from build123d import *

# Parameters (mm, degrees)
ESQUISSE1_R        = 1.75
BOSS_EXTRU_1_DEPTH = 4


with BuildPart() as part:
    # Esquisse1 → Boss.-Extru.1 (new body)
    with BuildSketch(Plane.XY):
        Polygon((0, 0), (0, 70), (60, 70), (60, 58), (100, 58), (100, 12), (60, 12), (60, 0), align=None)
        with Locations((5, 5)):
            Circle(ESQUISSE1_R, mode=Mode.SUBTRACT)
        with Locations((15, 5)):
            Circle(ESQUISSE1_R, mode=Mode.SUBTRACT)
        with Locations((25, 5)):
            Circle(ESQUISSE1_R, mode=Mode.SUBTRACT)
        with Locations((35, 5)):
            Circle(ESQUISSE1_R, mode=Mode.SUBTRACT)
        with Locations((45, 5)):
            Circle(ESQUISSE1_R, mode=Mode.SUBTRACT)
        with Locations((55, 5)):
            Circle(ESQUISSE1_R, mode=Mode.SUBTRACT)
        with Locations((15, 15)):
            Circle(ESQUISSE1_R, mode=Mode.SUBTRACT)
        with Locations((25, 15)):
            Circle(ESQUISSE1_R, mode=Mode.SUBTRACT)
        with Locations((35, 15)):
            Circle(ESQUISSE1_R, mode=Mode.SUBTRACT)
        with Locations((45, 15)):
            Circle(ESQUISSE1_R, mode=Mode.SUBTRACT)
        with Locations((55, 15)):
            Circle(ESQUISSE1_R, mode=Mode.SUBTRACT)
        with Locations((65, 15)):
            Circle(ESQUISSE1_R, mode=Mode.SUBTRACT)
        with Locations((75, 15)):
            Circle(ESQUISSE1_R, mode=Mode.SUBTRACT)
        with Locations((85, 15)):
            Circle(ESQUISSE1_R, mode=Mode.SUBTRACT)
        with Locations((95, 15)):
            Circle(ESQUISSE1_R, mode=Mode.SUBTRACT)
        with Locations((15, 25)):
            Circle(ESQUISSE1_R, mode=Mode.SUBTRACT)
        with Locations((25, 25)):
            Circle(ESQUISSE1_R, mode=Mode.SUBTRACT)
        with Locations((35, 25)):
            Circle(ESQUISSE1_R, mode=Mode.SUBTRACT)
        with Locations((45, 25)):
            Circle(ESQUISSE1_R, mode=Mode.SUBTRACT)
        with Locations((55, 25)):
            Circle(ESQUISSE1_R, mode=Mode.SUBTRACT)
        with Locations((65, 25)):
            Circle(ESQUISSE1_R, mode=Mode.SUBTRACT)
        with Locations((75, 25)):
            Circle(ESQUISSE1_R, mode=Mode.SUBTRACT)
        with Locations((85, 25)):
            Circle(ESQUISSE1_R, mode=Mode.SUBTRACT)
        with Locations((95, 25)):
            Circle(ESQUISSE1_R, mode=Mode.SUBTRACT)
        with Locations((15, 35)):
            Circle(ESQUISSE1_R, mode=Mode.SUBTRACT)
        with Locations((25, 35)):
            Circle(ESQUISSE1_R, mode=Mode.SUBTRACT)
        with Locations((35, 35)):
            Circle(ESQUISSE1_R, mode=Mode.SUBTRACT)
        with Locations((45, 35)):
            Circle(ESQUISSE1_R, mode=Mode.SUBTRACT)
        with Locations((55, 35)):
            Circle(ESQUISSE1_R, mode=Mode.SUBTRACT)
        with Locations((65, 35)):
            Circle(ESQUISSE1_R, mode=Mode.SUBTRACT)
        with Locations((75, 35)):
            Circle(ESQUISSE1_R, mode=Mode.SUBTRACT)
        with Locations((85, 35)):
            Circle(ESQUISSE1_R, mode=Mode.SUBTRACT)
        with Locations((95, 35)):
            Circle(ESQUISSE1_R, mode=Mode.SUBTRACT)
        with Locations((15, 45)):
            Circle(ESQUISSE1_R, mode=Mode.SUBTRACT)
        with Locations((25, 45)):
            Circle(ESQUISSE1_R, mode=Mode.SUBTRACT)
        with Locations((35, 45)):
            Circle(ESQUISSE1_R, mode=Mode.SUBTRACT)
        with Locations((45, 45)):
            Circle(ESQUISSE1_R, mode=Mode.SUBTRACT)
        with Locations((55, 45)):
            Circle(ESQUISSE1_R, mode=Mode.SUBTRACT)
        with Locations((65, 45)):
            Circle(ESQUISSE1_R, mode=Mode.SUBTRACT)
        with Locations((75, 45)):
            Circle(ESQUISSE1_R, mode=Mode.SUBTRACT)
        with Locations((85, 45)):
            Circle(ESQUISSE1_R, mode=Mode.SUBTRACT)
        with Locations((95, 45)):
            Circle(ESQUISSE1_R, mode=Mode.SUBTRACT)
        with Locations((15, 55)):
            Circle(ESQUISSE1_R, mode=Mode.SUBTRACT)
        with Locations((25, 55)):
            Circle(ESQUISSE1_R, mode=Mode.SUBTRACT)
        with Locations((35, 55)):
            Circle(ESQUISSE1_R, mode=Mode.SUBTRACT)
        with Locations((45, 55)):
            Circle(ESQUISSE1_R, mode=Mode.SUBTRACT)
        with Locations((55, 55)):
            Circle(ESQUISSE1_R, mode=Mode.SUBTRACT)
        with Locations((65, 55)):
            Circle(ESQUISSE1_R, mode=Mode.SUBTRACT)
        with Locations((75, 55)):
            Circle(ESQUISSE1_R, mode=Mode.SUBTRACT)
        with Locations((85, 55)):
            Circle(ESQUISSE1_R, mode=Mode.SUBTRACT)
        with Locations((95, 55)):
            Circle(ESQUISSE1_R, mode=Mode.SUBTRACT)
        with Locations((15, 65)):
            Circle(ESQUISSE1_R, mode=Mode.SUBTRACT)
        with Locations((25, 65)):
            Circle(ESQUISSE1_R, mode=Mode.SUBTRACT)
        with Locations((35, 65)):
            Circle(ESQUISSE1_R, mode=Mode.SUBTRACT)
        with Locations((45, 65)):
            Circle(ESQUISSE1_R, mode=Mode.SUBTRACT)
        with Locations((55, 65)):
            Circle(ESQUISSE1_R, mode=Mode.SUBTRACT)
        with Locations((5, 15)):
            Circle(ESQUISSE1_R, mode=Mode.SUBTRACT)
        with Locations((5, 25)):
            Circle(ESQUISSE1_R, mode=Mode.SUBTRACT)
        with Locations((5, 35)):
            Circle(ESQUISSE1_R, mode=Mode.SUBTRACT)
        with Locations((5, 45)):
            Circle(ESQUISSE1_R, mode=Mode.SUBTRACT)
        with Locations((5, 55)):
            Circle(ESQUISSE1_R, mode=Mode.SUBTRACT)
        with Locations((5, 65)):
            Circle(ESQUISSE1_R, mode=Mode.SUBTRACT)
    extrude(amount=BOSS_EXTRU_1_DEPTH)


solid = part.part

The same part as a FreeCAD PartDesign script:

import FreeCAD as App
import Part
import Sketcher

V = App.Vector
Q = App.Units.Quantity

doc = App.newDocument("Part")
body = doc.addObject("PartDesign::Body", "Body")

# Sketch on XY plane
sketch1 = doc.addObject("Sketcher::SketchObject", "Sketch")
body.addObject(sketch1)
sketch1.AttachmentSupport = (doc.XY_Plane, [""])
sketch1.MapMode = "FlatFace"
sketch1.addGeometry([
    Part.LineSegment(V(0, 70, 0), V(0, 0, 0)),  # 0
    Part.LineSegment(V(0, 0, 0), V(60, 0, 0)),  # 1
    Part.LineSegment(V(60, 0, 0), V(60, 12, 0)),  # 2
    Part.LineSegment(V(60, 12, 0), V(100, 12, 0)),  # 3
    Part.LineSegment(V(100, 12, 0), V(100, 58, 0)),  # 4
    Part.LineSegment(V(100, 58, 0), V(60, 58, 0)),  # 5
    Part.LineSegment(V(60, 58, 0), V(60, 70, 0)),  # 6
    Part.LineSegment(V(60, 70, 0), V(0, 70, 0)),  # 7
    Part.Circle(V(95, 15, 0), V(0, 0, 1), 1.8),  # 8
    Part.Circle(V(85, 15, 0), V(0, 0, 1), 1.8),  # 9
    Part.Circle(V(75, 15, 0), V(0, 0, 1), 1.8),  # 10
    Part.Circle(V(55, 5, 0), V(0, 0, 1), 1.8),  # 11
    Part.Circle(V(65, 15, 0), V(0, 0, 1), 1.8),  # 12
    Part.Circle(V(55, 15, 0), V(0, 0, 1), 1.8),  # 13
    Part.Circle(V(95, 25, 0), V(0, 0, 1), 1.8),  # 14
    Part.Circle(V(85, 25, 0), V(0, 0, 1), 1.8),  # 15
    Part.Circle(V(75, 25, 0), V(0, 0, 1), 1.8),  # 16
    Part.Circle(V(65, 25, 0), V(0, 0, 1), 1.8),  # 17
    Part.Circle(V(55, 25, 0), V(0, 0, 1), 1.8),  # 18
    Part.Circle(V(45, 5, 0), V(0, 0, 1), 1.8),  # 19
    Part.Circle(V(35, 5, 0), V(0, 0, 1), 1.8),  # 20
    Part.Circle(V(45, 15, 0), V(0, 0, 1), 1.8),  # 21
    Part.Circle(V(35, 15, 0), V(0, 0, 1), 1.8),  # 22
    Part.Circle(V(25, 5, 0), V(0, 0, 1), 1.8),  # 23
    Part.Circle(V(15, 5, 0), V(0, 0, 1), 1.8),  # 24
    Part.Circle(V(5, 5, 0), V(0, 0, 1), 1.8),  # 25
    Part.Circle(V(25, 15, 0), V(0, 0, 1), 1.8),  # 26
    Part.Circle(V(15, 15, 0), V(0, 0, 1), 1.8),  # 27
    Part.Circle(V(5, 15, 0), V(0, 0, 1), 1.8),  # 28
    Part.Circle(V(45, 25, 0), V(0, 0, 1), 1.8),  # 29
    Part.Circle(V(35, 25, 0), V(0, 0, 1), 1.8),  # 30
    Part.Circle(V(25, 25, 0), V(0, 0, 1), 1.8),  # 31
    Part.Circle(V(15, 25, 0), V(0, 0, 1), 1.8),  # 32
    Part.Circle(V(5, 25, 0), V(0, 0, 1), 1.8),  # 33
    Part.Circle(V(95, 35, 0), V(0, 0, 1), 1.8),  # 34
    Part.Circle(V(85, 35, 0), V(0, 0, 1), 1.8),  # 35
    Part.Circle(V(75, 35, 0), V(0, 0, 1), 1.8),  # 36
    Part.Circle(V(95, 45, 0), V(0, 0, 1), 1.8),  # 37
    Part.Circle(V(85, 45, 0), V(0, 0, 1), 1.8),  # 38
    Part.Circle(V(75, 45, 0), V(0, 0, 1), 1.8),  # 39
    Part.Circle(V(65, 35, 0), V(0, 0, 1), 1.8),  # 40
    Part.Circle(V(55, 35, 0), V(0, 0, 1), 1.8),  # 41
    Part.Circle(V(65, 45, 0), V(0, 0, 1), 1.8),  # 42
    Part.Circle(V(55, 45, 0), V(0, 0, 1), 1.8),  # 43
    Part.Circle(V(95, 55, 0), V(0, 0, 1), 1.8),  # 44
    Part.Circle(V(85, 55, 0), V(0, 0, 1), 1.8),  # 45
    Part.Circle(V(75, 55, 0), V(0, 0, 1), 1.8),  # 46
    Part.Circle(V(65, 55, 0), V(0, 0, 1), 1.8),  # 47
    Part.Circle(V(55, 55, 0), V(0, 0, 1), 1.8),  # 48
    Part.Circle(V(55, 65, 0), V(0, 0, 1), 1.8),  # 49
    Part.Circle(V(45, 35, 0), V(0, 0, 1), 1.8),  # 50
    Part.Circle(V(35, 35, 0), V(0, 0, 1), 1.8),  # 51
    Part.Circle(V(45, 45, 0), V(0, 0, 1), 1.8),  # 52
    Part.Circle(V(35, 45, 0), V(0, 0, 1), 1.8),  # 53
    Part.Circle(V(25, 35, 0), V(0, 0, 1), 1.8),  # 54
    Part.Circle(V(15, 35, 0), V(0, 0, 1), 1.8),  # 55
    Part.Circle(V(5, 35, 0), V(0, 0, 1), 1.8),  # 56
    Part.Circle(V(25, 45, 0), V(0, 0, 1), 1.8),  # 57
    Part.Circle(V(15, 45, 0), V(0, 0, 1), 1.8),  # 58
    Part.Circle(V(5, 45, 0), V(0, 0, 1), 1.8),  # 59
    Part.Circle(V(45, 55, 0), V(0, 0, 1), 1.8),  # 60
    Part.Circle(V(35, 55, 0), V(0, 0, 1), 1.8),  # 61
    Part.Circle(V(45, 65, 0), V(0, 0, 1), 1.8),  # 62
    Part.Circle(V(35, 65, 0), V(0, 0, 1), 1.8),  # 63
    Part.Circle(V(25, 55, 0), V(0, 0, 1), 1.8),  # 64
    Part.Circle(V(15, 55, 0), V(0, 0, 1), 1.8),  # 65
    Part.Circle(V(5, 55, 0), V(0, 0, 1), 1.8),  # 66
    Part.Circle(V(25, 65, 0), V(0, 0, 1), 1.8),  # 67
    Part.Circle(V(15, 65, 0), V(0, 0, 1), 1.8),  # 68
    Part.Circle(V(5, 65, 0), V(0, 0, 1), 1.8),  # 69
], False)
sketch1.addConstraint([
    Sketcher.Constraint("Coincident", 0, 2, 1, 1),
    Sketcher.Constraint("Coincident", 1, 2, 2, 1),
    Sketcher.Constraint("Coincident", 2, 2, 3, 1),
    Sketcher.Constraint("Coincident", 3, 2, 4, 1),
    Sketcher.Constraint("Coincident", 4, 2, 5, 1),
    Sketcher.Constraint("Coincident", 5, 2, 6, 1),
    Sketcher.Constraint("Coincident", 6, 2, 7, 1),
    Sketcher.Constraint("Coincident", 7, 2, 0, 1),
    Sketcher.Constraint("Vertical", 0),
    Sketcher.Constraint("Horizontal", 1),
    Sketcher.Constraint("Vertical", 2),
    Sketcher.Constraint("Horizontal", 3),
    Sketcher.Constraint("Vertical", 4),
    Sketcher.Constraint("Horizontal", 5),
    Sketcher.Constraint("Vertical", 6),
    Sketcher.Constraint("Horizontal", 7),
    Sketcher.Constraint("Coincident", 0, 2, -1, 1),
    Sketcher.Constraint("Equal", 8, 9),
    Sketcher.Constraint("Equal", 9, 10),
    Sketcher.Constraint("Equal", 10, 11),
    Sketcher.Constraint("Equal", 11, 12),
    Sketcher.Constraint("Equal", 12, 13),
    Sketcher.Constraint("Equal", 13, 14),
    Sketcher.Constraint("Equal", 14, 15),
    Sketcher.Constraint("Equal", 15, 16),
    Sketcher.Constraint("Equal", 16, 17),
    Sketcher.Constraint("Equal", 17, 18),
    Sketcher.Constraint("Equal", 18, 19),
    Sketcher.Constraint("Equal", 19, 20),
    Sketcher.Constraint("Equal", 20, 21),
    Sketcher.Constraint("Equal", 21, 22),
    Sketcher.Constraint("Equal", 22, 23),
    Sketcher.Constraint("Equal", 23, 24),
    Sketcher.Constraint("Equal", 24, 25),
    Sketcher.Constraint("Equal", 25, 26),
    Sketcher.Constraint("Equal", 26, 27),
    Sketcher.Constraint("Equal", 27, 28),
    Sketcher.Constraint("Equal", 28, 29),
    Sketcher.Constraint("Equal", 29, 30),
    Sketcher.Constraint("Equal", 30, 31),
    Sketcher.Constraint("Equal", 31, 32),
    Sketcher.Constraint("Equal", 32, 33),
    Sketcher.Constraint("Equal", 33, 34),
    Sketcher.Constraint("Equal", 34, 35),
    Sketcher.Constraint("Equal", 35, 36),
    Sketcher.Constraint("Equal", 36, 37),
    Sketcher.Constraint("Equal", 37, 38),
    Sketcher.Constraint("Equal", 38, 39),
    Sketcher.Constraint("Equal", 39, 40),
    Sketcher.Constraint("Equal", 40, 41),
    Sketcher.Constraint("Equal", 41, 42),
    Sketcher.Constraint("Equal", 42, 43),
    Sketcher.Constraint("Equal", 43, 44),
    Sketcher.Constraint("Equal", 44, 45),
    Sketcher.Constraint("Equal", 45, 46),
    Sketcher.Constraint("Equal", 46, 47),
    Sketcher.Constraint("Equal", 47, 48),
    Sketcher.Constraint("Equal", 48, 49),
    Sketcher.Constraint("Equal", 49, 50),
    Sketcher.Constraint("Equal", 50, 51),
    Sketcher.Constraint("Equal", 51, 52),
    Sketcher.Constraint("Equal", 52, 53),
    Sketcher.Constraint("Equal", 53, 54),
    Sketcher.Constraint("Equal", 54, 55),
    Sketcher.Constraint("Equal", 55, 56),
    Sketcher.Constraint("Equal", 56, 57),
    Sketcher.Constraint("Equal", 57, 58),
    Sketcher.Constraint("Equal", 58, 59),
    Sketcher.Constraint("Equal", 59, 60),
    Sketcher.Constraint("Equal", 60, 61),
    Sketcher.Constraint("Equal", 61, 62),
    Sketcher.Constraint("Equal", 62, 63),
    Sketcher.Constraint("Equal", 63, 64),
    Sketcher.Constraint("Equal", 64, 65),
    Sketcher.Constraint("Equal", 65, 66),
    Sketcher.Constraint("Equal", 66, 67),
    Sketcher.Constraint("Equal", 67, 68),
    Sketcher.Constraint("Equal", 68, 69),
    Sketcher.Constraint("Horizontal", 8, 3, 9, 3),
    Sketcher.Constraint("Horizontal", 9, 3, 10, 3),
    Sketcher.Constraint("Horizontal", 10, 3, 12, 3),
    Sketcher.Constraint("Horizontal", 12, 3, 13, 3),
    Sketcher.Constraint("Horizontal", 14, 3, 15, 3),
    Sketcher.Constraint("Horizontal", 15, 3, 16, 3),
    Sketcher.Constraint("Horizontal", 16, 3, 17, 3),
    Sketcher.Constraint("Horizontal", 17, 3, 18, 3),
    Sketcher.Constraint("Horizontal", 11, 3, 19, 3),
    Sketcher.Constraint("Horizontal", 19, 3, 20, 3),
    Sketcher.Constraint("Horizontal", 13, 3, 21, 3),
    Sketcher.Constraint("Horizontal", 21, 3, 22, 3),
    Sketcher.Constraint("Horizontal", 20, 3, 23, 3),
    Sketcher.Constraint("Horizontal", 23, 3, 24, 3),
    Sketcher.Constraint("Horizontal", 24, 3, 25, 3),
    Sketcher.Constraint("Horizontal", 22, 3, 26, 3),
    Sketcher.Constraint("Horizontal", 26, 3, 27, 3),
    Sketcher.Constraint("Horizontal", 27, 3, 28, 3),
    Sketcher.Constraint("Horizontal", 18, 3, 29, 3),
    Sketcher.Constraint("Horizontal", 29, 3, 30, 3),
    Sketcher.Constraint("Horizontal", 30, 3, 31, 3),
    Sketcher.Constraint("Horizontal", 31, 3, 32, 3),
    Sketcher.Constraint("Horizontal", 32, 3, 33, 3),
    Sketcher.Constraint("Horizontal", 34, 3, 35, 3),
    Sketcher.Constraint("Horizontal", 35, 3, 36, 3),
    Sketcher.Constraint("Horizontal", 37, 3, 38, 3),
    Sketcher.Constraint("Horizontal", 38, 3, 39, 3),
    Sketcher.Constraint("Horizontal", 36, 3, 40, 3),
    Sketcher.Constraint("Horizontal", 40, 3, 41, 3),
    Sketcher.Constraint("Horizontal", 39, 3, 42, 3),
    Sketcher.Constraint("Horizontal", 42, 3, 43, 3),
    Sketcher.Constraint("Horizontal", 44, 3, 45, 3),
    Sketcher.Constraint("Horizontal", 45, 3, 46, 3),
    Sketcher.Constraint("Horizontal", 46, 3, 47, 3),
    Sketcher.Constraint("Horizontal", 47, 3, 48, 3),
    Sketcher.Constraint("Horizontal", 41, 3, 50, 3),
    Sketcher.Constraint("Horizontal", 50, 3, 51, 3),
    Sketcher.Constraint("Horizontal", 43, 3, 52, 3),
    Sketcher.Constraint("Horizontal", 52, 3, 53, 3),
    Sketcher.Constraint("Horizontal", 51, 3, 54, 3),
    Sketcher.Constraint("Horizontal", 54, 3, 55, 3),
    Sketcher.Constraint("Horizontal", 55, 3, 56, 3),
    Sketcher.Constraint("Horizontal", 53, 3, 57, 3),
    Sketcher.Constraint("Horizontal", 57, 3, 58, 3),
    Sketcher.Constraint("Horizontal", 58, 3, 59, 3),
    Sketcher.Constraint("Horizontal", 48, 3, 60, 3),
    Sketcher.Constraint("Horizontal", 60, 3, 61, 3),
    Sketcher.Constraint("Horizontal", 49, 3, 62, 3),
    Sketcher.Constraint("Horizontal", 62, 3, 63, 3),
    Sketcher.Constraint("Horizontal", 61, 3, 64, 3),
    Sketcher.Constraint("Horizontal", 64, 3, 65, 3),
    Sketcher.Constraint("Horizontal", 65, 3, 66, 3),
    Sketcher.Constraint("Horizontal", 63, 3, 67, 3),
    Sketcher.Constraint("Horizontal", 67, 3, 68, 3),
    Sketcher.Constraint("Horizontal", 68, 3, 69, 3),
    Sketcher.Constraint("Vertical", 11, 3, 13, 3),
    Sketcher.Constraint("Vertical", 8, 3, 14, 3),
    Sketcher.Constraint("Vertical", 9, 3, 15, 3),
    Sketcher.Constraint("Vertical", 10, 3, 16, 3),
    Sketcher.Constraint("Vertical", 12, 3, 17, 3),
    Sketcher.Constraint("Vertical", 13, 3, 18, 3),
    Sketcher.Constraint("Vertical", 19, 3, 21, 3),
    Sketcher.Constraint("Vertical", 20, 3, 22, 3),
    Sketcher.Constraint("Vertical", 23, 3, 26, 3),
    Sketcher.Constraint("Vertical", 24, 3, 27, 3),
    Sketcher.Constraint("Vertical", 25, 3, 28, 3),
    Sketcher.Constraint("Vertical", 21, 3, 29, 3),
    Sketcher.Constraint("Vertical", 22, 3, 30, 3),
    Sketcher.Constraint("Vertical", 26, 3, 31, 3),
    Sketcher.Constraint("Vertical", 27, 3, 32, 3),
    Sketcher.Constraint("Vertical", 28, 3, 33, 3),
    Sketcher.Constraint("Vertical", 14, 3, 34, 3),
    Sketcher.Constraint("Vertical", 15, 3, 35, 3),
    Sketcher.Constraint("Vertical", 16, 3, 36, 3),
    Sketcher.Constraint("Vertical", 34, 3, 37, 3),
    Sketcher.Constraint("Vertical", 35, 3, 38, 3),
    Sketcher.Constraint("Vertical", 36, 3, 39, 3),
    Sketcher.Constraint("Vertical", 17, 3, 40, 3),
    Sketcher.Constraint("Vertical", 18, 3, 41, 3),
    Sketcher.Constraint("Vertical", 40, 3, 42, 3),
    Sketcher.Constraint("Vertical", 41, 3, 43, 3),
    Sketcher.Constraint("Vertical", 37, 3, 44, 3),
    Sketcher.Constraint("Vertical", 38, 3, 45, 3),
    Sketcher.Constraint("Vertical", 39, 3, 46, 3),
    Sketcher.Constraint("Vertical", 42, 3, 47, 3),
    Sketcher.Constraint("Vertical", 43, 3, 48, 3),
    Sketcher.Constraint("Vertical", 48, 3, 49, 3),
    Sketcher.Constraint("Vertical", 29, 3, 50, 3),
    Sketcher.Constraint("Vertical", 30, 3, 51, 3),
    Sketcher.Constraint("Vertical", 50, 3, 52, 3),
    Sketcher.Constraint("Vertical", 51, 3, 53, 3),
    Sketcher.Constraint("Vertical", 31, 3, 54, 3),
    Sketcher.Constraint("Vertical", 32, 3, 55, 3),
    Sketcher.Constraint("Vertical", 33, 3, 56, 3),
    Sketcher.Constraint("Vertical", 54, 3, 57, 3),
    Sketcher.Constraint("Vertical", 55, 3, 58, 3),
    Sketcher.Constraint("Vertical", 56, 3, 59, 3),
    Sketcher.Constraint("Vertical", 52, 3, 60, 3),
    Sketcher.Constraint("Vertical", 53, 3, 61, 3),
    Sketcher.Constraint("Vertical", 60, 3, 62, 3),
    Sketcher.Constraint("Vertical", 61, 3, 63, 3),
    Sketcher.Constraint("Vertical", 57, 3, 64, 3),
    Sketcher.Constraint("Vertical", 58, 3, 65, 3),
    Sketcher.Constraint("Vertical", 59, 3, 66, 3),
    Sketcher.Constraint("Vertical", 64, 3, 67, 3),
    Sketcher.Constraint("Vertical", 65, 3, 68, 3),
    Sketcher.Constraint("Vertical", 66, 3, 69, 3),
    Sketcher.Constraint("Vertical", 2, 2, 5, 2),
    Sketcher.Constraint("Equal", 2, 6),
    Sketcher.Constraint("Diameter", 8, Q("3.5 mm")),
    Sketcher.Constraint("DistanceX", 1, 1, 1, 2, Q("60 mm")),
    Sketcher.Constraint("DistanceX", 3, 1, 3, 2, Q("40 mm")),
    Sketcher.Constraint("DistanceY", 0, 2, 0, 1, Q("70 mm")),
    Sketcher.Constraint("DistanceY", 2, 1, 2, 2, Q("12 mm")),
    Sketcher.Constraint("DistanceX", -1, 1, 8, 3, Q("95 mm")),
    Sketcher.Constraint("DistanceY", -1, 1, 8, 3, Q("15 mm")),
    Sketcher.Constraint("DistanceX", -1, 1, 9, 3, Q("85 mm")),
    Sketcher.Constraint("DistanceX", -1, 1, 10, 3, Q("75 mm")),
    Sketcher.Constraint("DistanceX", -1, 1, 11, 3, Q("55 mm")),
    Sketcher.Constraint("DistanceY", -1, 1, 11, 3, Q("5 mm")),
    Sketcher.Constraint("DistanceX", -1, 1, 12, 3, Q("65 mm")),
    Sketcher.Constraint("DistanceY", -1, 1, 14, 3, Q("25 mm")),
    Sketcher.Constraint("DistanceX", -1, 1, 19, 3, Q("45 mm")),
    Sketcher.Constraint("DistanceX", -1, 1, 20, 3, Q("35 mm")),
    Sketcher.Constraint("DistanceX", -1, 1, 23, 3, Q("25 mm")),
    Sketcher.Constraint("DistanceX", -1, 1, 24, 3, Q("15 mm")),
    Sketcher.Constraint("DistanceX", -1, 1, 25, 3, Q("5 mm")),
    Sketcher.Constraint("DistanceY", -1, 1, 34, 3, Q("35 mm")),
    Sketcher.Constraint("DistanceY", -1, 1, 37, 3, Q("45 mm")),
    Sketcher.Constraint("DistanceY", -1, 1, 44, 3, Q("55 mm")),
    Sketcher.Constraint("DistanceY", -1, 1, 49, 3, Q("65 mm")),
])
pad1 = doc.addObject("PartDesign::Pad", "Pad")
body.addObject(pad1)
pad1.Profile = sketch1
pad1.Length = 4

doc.recompute()
